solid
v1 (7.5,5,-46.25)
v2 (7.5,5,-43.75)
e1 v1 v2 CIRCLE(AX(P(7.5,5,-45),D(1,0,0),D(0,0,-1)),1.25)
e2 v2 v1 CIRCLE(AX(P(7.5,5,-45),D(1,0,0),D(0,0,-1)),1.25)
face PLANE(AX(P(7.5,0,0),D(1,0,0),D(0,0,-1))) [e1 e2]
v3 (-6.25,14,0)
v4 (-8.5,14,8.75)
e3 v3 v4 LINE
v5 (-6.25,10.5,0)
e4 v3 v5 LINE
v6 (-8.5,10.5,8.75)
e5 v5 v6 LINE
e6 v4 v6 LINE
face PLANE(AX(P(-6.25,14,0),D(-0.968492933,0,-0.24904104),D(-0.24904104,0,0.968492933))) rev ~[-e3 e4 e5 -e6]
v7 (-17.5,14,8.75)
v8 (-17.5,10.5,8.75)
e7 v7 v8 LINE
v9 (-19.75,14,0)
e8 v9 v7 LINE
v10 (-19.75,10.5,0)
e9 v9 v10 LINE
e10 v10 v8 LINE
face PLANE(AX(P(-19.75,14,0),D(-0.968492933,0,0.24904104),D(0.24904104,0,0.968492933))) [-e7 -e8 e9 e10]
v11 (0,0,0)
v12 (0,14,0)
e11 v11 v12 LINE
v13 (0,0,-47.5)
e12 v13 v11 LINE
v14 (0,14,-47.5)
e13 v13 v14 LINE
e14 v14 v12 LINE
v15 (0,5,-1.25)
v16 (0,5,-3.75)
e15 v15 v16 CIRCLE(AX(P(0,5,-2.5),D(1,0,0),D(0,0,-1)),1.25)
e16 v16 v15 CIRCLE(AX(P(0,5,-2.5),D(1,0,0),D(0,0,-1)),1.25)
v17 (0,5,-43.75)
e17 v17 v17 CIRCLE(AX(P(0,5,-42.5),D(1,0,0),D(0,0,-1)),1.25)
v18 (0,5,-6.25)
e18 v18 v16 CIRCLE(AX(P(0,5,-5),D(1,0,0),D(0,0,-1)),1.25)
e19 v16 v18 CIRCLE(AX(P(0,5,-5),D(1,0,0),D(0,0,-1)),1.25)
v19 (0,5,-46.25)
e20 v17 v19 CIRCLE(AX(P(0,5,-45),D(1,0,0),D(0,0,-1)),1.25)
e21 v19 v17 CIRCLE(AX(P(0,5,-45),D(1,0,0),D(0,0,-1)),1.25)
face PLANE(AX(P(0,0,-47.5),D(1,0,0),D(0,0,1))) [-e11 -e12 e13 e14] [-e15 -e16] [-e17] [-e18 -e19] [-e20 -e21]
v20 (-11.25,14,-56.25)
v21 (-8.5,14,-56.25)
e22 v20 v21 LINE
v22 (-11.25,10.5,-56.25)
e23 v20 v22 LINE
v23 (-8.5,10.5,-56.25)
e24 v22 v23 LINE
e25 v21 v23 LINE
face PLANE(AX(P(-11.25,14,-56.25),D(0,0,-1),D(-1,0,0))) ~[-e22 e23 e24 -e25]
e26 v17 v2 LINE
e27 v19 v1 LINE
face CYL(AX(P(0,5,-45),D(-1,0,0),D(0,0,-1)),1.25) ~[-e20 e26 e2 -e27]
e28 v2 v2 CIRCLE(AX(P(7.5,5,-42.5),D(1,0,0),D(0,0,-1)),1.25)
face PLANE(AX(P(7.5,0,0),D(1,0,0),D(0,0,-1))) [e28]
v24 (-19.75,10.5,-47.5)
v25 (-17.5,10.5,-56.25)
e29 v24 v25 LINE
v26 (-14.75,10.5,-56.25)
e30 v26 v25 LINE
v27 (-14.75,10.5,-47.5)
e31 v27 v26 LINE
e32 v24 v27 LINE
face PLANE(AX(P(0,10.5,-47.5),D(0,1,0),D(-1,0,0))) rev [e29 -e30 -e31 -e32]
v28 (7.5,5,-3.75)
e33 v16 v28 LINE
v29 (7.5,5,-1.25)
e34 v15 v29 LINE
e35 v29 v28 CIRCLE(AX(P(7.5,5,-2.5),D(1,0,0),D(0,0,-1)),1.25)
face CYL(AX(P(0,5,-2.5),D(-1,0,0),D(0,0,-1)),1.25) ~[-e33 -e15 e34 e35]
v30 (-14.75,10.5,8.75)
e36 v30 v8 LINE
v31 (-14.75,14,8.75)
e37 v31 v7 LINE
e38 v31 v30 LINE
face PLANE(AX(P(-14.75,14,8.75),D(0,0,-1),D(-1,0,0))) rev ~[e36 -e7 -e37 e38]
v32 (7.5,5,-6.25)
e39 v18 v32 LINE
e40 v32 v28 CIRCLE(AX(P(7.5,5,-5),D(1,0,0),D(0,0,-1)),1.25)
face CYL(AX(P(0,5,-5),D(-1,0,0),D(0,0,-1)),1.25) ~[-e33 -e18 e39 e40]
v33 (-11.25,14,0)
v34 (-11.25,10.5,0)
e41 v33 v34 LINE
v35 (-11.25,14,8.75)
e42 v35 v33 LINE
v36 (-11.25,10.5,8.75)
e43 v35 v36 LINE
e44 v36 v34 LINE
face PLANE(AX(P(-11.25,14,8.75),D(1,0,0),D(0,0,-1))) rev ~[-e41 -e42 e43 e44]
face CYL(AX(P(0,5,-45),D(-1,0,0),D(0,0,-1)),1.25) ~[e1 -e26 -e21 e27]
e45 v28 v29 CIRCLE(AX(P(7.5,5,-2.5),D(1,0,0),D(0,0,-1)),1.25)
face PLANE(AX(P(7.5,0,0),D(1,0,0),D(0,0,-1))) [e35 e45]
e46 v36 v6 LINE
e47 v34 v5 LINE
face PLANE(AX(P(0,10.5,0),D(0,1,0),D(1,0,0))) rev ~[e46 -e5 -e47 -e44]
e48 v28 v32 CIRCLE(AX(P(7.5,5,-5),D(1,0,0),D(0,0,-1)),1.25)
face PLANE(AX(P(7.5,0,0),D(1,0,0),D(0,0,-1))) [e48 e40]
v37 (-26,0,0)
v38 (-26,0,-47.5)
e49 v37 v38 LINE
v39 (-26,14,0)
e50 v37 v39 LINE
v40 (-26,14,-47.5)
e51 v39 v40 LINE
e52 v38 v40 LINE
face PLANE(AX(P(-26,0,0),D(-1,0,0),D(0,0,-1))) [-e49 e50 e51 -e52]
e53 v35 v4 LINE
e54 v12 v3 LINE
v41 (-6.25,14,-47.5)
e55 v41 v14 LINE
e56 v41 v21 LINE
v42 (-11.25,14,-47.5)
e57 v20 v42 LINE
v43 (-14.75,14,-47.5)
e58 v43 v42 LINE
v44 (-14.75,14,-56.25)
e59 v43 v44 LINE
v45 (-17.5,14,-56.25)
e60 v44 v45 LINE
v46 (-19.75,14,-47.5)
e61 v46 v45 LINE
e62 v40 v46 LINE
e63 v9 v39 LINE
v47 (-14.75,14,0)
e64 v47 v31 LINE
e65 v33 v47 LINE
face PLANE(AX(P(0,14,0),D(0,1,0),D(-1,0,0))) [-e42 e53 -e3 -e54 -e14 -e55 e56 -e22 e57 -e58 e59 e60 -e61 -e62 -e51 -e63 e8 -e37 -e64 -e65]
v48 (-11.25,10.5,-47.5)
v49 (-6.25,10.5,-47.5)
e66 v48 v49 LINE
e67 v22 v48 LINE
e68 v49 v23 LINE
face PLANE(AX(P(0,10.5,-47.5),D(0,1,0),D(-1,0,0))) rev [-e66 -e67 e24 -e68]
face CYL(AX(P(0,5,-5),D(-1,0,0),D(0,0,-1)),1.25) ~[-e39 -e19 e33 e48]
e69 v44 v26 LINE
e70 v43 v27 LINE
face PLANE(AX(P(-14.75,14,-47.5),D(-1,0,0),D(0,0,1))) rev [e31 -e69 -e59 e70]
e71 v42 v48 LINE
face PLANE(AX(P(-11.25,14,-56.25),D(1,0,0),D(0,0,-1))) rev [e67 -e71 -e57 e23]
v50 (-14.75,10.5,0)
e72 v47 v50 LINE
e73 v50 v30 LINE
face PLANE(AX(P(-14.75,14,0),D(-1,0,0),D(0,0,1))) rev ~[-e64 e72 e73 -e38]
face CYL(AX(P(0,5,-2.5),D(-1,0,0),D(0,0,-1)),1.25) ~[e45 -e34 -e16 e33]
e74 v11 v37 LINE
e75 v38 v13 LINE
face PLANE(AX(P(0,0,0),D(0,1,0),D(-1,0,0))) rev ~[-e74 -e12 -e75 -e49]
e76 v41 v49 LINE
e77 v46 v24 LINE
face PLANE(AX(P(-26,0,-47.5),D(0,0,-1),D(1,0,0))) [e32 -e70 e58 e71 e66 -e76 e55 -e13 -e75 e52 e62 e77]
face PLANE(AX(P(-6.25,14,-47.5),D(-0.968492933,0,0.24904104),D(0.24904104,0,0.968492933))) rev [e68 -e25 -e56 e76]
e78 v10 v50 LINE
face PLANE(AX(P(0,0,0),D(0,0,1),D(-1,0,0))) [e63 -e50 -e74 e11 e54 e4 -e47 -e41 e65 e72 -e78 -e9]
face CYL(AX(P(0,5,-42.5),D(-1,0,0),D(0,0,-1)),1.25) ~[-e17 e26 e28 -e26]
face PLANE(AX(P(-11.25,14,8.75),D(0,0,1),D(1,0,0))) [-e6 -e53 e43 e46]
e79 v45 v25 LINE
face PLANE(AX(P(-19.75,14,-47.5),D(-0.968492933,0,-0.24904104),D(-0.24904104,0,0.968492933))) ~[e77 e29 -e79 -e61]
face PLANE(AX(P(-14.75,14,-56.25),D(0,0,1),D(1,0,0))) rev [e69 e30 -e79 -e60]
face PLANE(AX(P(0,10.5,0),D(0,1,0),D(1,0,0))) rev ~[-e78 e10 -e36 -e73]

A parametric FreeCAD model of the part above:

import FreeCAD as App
import Part
import Sketcher
from FreeCAD import Vector
Q = App.Units.Quantity


def add_polygon(sketch, points):
    """Adds a closed chain of lines whose ends are joined by coincident constraints."""
    first, n = sketch.GeometryCount, len(points)
    for a, b in zip(points, points[1:] + points[:1]):
        sketch.addGeometry(Part.LineSegment(App.Vector(*a, 0), App.Vector(*b, 0)), False)
    for i in range(n):
        sketch.addConstraint(Sketcher.Constraint("Coincident", first + i, 2, first + (i + 1) % n, 1))

doc = App.newDocument("Part")
params = doc.addObject("Spreadsheet::Sheet", "Params")
for row, (alias, value) in enumerate([
    ("sketch1_width", "26 mm"),
    ("sketch1_height", "47.5 mm"),
    ("pad1_length", "14 mm"),
    ("sketch2_width", "2.75 mm"),
    ("sketch2_height", "8.75 mm"),
    ("sketch2_width2", "5 mm"),
    ("pad2_length", "3.5 mm"),
    ("sketch3_diameter", "2.5 mm"),
    ("pad3_length", "7.5 mm"),
], start=1):
    params.set(f"A{row}", alias)
    params.set(f"B{row}", "=" + value)
    params.setAlias(f"B{row}", alias)

body = doc.addObject("PartDesign::Body", "Body")

# Sketch on XZ plane
sketch1 = doc.addObject("Sketcher::SketchObject", "Sketch")
body.addObject(sketch1)
sketch1.AttachmentSupport = (doc.XZ_Plane, [""])
sketch1.MapMode = "FlatFace"
add_polygon(sketch1, [(-26, 0), (0, 0), (0, -48), (-26, -48)])  # lines 0-3
sketch1.addConstraint([
    Sketcher.Constraint("Horizontal", 0),
    Sketcher.Constraint("Vertical", 1),
    Sketcher.Constraint("Horizontal", 2),
    Sketcher.Constraint("Vertical", 3),
    Sketcher.Constraint("Coincident", 0, 2, -1, 1),
    Sketcher.Constraint("DistanceX", 0, 1, 0, 2, Q("26 mm")),
    Sketcher.Constraint("DistanceY", 1, 2, 1, 1, Q("47.5 mm")),
])
sketch1.setExpression("Constraints[9]", "Params.sketch1_width")
sketch1.setExpression("Constraints[10]", "Params.sketch1_height")
pad1 = doc.addObject("PartDesign::Pad", "Pad")
body.addObject(pad1)
pad1.Profile = sketch1
pad1.setExpression("Length", "Params.pad1_length")
pad1.Reversed = True

# Sketch on XZ plane
sketch2 = doc.addObject("Sketcher::SketchObject", "Sketch001")
body.addObject(sketch2)
sketch2.AttachmentSupport = (doc.XZ_Plane, [""])
sketch2.MapMode = "FlatFace"
sketch2.AttachmentOffset = App.Placement(Vector(0, 0, -14), App.Rotation())
add_polygon(sketch2, [(-14.8, 0), (-19.8, 0), (-17.5, 8.8), (-14.8, 8.8)])  # lines 0-3
add_polygon(sketch2, [(-6.2, 0), (-11.2, 0), (-11.2, 8.8), (-8.5, 8.8)])  # lines 4-7
sketch2.addConstraint([
    Sketcher.Constraint("Horizontal", 0),
    Sketcher.Constraint("Horizontal", 2),
    Sketcher.Constraint("Vertical", 3),
    Sketcher.Constraint("Horizontal", 4),
    Sketcher.Constraint("Vertical", 5),
    Sketcher.Constraint("Horizontal", 6),
    Sketcher.Constraint("PointOnObject", 0, 2, -1),
    Sketcher.Constraint("PointOnObject", 4, 2, -1),
    Sketcher.Constraint("Horizontal", 2, 2, 5, 2),
    Sketcher.Constraint("Equal", 0, 4),
    Sketcher.Constraint("Equal", 2, 6),
    Sketcher.Constraint("DistanceX", 2, 1, 2, 2, Q("2.75 mm")),
    Sketcher.Constraint("DistanceY", 3, 2, 3, 1, Q("8.75 mm")),
    Sketcher.Constraint("DistanceX", 3, 2, 4, 2, Q("3.5 mm")),
    Sketcher.Constraint("DistanceX", 0, 2, 0, 1, Q("5 mm")),
    Sketcher.Constraint("DistanceX", 7, 2, -1, 1, Q("6.25 mm")),
])
sketch2.setExpression("Constraints[19]", "Params.sketch2_width")
sketch2.setExpression("Constraints[20]", "Params.sketch2_height")
sketch2.setExpression("Constraints[22]", "Params.sketch2_width2")
pad2 = doc.addObject("PartDesign::Pad", "Pad001")
body.addObject(pad2)
pad2.Profile = sketch2
pad2.setExpression("Length", "Params.pad2_length")
doc.recompute()

datumplane = doc.addObject("PartDesign::Plane", "DatumPlane")
body.addObject(datumplane)
datumplane.AttachmentSupport = (doc.XY_Plane, [""])
datumplane.MapMode = "FlatFace"
datumplane.AttachmentOffset = App.Placement(Vector(0, 0, -23.75), App.Rotation())
mirrored = doc.addObject("PartDesign::Mirrored", "Mirrored")
body.addObject(mirrored)
mirrored.Originals = [pad2]
mirrored.MirrorPlane = (datumplane, [""])
body.Tip = mirrored

# Sketch on YZ plane
sketch3 = doc.addObject("Sketcher::SketchObject", "Sketch002")
body.addObject(sketch3)
sketch3.AttachmentSupport = (doc.YZ_Plane, [""])
sketch3.MapMode = "FlatFace"
sketch3.addGeometry([
    Part.Circle(Vector(5, -5, 0), Vector(0, 0, 1), 1.2),
    Part.Circle(Vector(5, -2.5, 0), Vector(0, 0, 1), 1.2),
    Part.Circle(Vector(5, -42.5, 0), Vector(0, 0, 1), 1.2),
    Part.Circle(Vector(5, -45, 0), Vector(0, 0, 1), 1.2),
], False)
sketch3.addConstraint([
    Sketcher.Constraint("Equal", 0, 1),
    Sketcher.Constraint("Equal", 1, 2),
    Sketcher.Constraint("Equal", 2, 3),
    Sketcher.Constraint("Vertical", 0, 3, 1, 3),
    Sketcher.Constraint("Vertical", 1, 3, 2, 3),
    Sketcher.Constraint("Vertical", 2, 3, 3, 3),
    Sketcher.Constraint("Diameter", 0, Q("2.5 mm")),
    Sketcher.Constraint("DistanceX", -1, 1, 0, 3, Q("5 mm")),
    Sketcher.Constraint("DistanceY", 0, 3, -1, 1, Q("5 mm")),
    Sketcher.Constraint("DistanceY", 1, 3, -1, 1, Q("2.5 mm")),
    Sketcher.Constraint("DistanceY", 3, 3, 2, 3, Q("2.5 mm")),
    Sketcher.Constraint("DistanceY", 3, 3, -1, 1, Q("45 mm")),
])
sketch3.setExpression("Constraints[6]", "Params.sketch3_diameter")
pad3 = doc.addObject("PartDesign::Pad", "Pad002")
body.addObject(pad3)
pad3.Profile = sketch3
pad3.setExpression("Length", "Params.pad3_length")

doc.recompute()
